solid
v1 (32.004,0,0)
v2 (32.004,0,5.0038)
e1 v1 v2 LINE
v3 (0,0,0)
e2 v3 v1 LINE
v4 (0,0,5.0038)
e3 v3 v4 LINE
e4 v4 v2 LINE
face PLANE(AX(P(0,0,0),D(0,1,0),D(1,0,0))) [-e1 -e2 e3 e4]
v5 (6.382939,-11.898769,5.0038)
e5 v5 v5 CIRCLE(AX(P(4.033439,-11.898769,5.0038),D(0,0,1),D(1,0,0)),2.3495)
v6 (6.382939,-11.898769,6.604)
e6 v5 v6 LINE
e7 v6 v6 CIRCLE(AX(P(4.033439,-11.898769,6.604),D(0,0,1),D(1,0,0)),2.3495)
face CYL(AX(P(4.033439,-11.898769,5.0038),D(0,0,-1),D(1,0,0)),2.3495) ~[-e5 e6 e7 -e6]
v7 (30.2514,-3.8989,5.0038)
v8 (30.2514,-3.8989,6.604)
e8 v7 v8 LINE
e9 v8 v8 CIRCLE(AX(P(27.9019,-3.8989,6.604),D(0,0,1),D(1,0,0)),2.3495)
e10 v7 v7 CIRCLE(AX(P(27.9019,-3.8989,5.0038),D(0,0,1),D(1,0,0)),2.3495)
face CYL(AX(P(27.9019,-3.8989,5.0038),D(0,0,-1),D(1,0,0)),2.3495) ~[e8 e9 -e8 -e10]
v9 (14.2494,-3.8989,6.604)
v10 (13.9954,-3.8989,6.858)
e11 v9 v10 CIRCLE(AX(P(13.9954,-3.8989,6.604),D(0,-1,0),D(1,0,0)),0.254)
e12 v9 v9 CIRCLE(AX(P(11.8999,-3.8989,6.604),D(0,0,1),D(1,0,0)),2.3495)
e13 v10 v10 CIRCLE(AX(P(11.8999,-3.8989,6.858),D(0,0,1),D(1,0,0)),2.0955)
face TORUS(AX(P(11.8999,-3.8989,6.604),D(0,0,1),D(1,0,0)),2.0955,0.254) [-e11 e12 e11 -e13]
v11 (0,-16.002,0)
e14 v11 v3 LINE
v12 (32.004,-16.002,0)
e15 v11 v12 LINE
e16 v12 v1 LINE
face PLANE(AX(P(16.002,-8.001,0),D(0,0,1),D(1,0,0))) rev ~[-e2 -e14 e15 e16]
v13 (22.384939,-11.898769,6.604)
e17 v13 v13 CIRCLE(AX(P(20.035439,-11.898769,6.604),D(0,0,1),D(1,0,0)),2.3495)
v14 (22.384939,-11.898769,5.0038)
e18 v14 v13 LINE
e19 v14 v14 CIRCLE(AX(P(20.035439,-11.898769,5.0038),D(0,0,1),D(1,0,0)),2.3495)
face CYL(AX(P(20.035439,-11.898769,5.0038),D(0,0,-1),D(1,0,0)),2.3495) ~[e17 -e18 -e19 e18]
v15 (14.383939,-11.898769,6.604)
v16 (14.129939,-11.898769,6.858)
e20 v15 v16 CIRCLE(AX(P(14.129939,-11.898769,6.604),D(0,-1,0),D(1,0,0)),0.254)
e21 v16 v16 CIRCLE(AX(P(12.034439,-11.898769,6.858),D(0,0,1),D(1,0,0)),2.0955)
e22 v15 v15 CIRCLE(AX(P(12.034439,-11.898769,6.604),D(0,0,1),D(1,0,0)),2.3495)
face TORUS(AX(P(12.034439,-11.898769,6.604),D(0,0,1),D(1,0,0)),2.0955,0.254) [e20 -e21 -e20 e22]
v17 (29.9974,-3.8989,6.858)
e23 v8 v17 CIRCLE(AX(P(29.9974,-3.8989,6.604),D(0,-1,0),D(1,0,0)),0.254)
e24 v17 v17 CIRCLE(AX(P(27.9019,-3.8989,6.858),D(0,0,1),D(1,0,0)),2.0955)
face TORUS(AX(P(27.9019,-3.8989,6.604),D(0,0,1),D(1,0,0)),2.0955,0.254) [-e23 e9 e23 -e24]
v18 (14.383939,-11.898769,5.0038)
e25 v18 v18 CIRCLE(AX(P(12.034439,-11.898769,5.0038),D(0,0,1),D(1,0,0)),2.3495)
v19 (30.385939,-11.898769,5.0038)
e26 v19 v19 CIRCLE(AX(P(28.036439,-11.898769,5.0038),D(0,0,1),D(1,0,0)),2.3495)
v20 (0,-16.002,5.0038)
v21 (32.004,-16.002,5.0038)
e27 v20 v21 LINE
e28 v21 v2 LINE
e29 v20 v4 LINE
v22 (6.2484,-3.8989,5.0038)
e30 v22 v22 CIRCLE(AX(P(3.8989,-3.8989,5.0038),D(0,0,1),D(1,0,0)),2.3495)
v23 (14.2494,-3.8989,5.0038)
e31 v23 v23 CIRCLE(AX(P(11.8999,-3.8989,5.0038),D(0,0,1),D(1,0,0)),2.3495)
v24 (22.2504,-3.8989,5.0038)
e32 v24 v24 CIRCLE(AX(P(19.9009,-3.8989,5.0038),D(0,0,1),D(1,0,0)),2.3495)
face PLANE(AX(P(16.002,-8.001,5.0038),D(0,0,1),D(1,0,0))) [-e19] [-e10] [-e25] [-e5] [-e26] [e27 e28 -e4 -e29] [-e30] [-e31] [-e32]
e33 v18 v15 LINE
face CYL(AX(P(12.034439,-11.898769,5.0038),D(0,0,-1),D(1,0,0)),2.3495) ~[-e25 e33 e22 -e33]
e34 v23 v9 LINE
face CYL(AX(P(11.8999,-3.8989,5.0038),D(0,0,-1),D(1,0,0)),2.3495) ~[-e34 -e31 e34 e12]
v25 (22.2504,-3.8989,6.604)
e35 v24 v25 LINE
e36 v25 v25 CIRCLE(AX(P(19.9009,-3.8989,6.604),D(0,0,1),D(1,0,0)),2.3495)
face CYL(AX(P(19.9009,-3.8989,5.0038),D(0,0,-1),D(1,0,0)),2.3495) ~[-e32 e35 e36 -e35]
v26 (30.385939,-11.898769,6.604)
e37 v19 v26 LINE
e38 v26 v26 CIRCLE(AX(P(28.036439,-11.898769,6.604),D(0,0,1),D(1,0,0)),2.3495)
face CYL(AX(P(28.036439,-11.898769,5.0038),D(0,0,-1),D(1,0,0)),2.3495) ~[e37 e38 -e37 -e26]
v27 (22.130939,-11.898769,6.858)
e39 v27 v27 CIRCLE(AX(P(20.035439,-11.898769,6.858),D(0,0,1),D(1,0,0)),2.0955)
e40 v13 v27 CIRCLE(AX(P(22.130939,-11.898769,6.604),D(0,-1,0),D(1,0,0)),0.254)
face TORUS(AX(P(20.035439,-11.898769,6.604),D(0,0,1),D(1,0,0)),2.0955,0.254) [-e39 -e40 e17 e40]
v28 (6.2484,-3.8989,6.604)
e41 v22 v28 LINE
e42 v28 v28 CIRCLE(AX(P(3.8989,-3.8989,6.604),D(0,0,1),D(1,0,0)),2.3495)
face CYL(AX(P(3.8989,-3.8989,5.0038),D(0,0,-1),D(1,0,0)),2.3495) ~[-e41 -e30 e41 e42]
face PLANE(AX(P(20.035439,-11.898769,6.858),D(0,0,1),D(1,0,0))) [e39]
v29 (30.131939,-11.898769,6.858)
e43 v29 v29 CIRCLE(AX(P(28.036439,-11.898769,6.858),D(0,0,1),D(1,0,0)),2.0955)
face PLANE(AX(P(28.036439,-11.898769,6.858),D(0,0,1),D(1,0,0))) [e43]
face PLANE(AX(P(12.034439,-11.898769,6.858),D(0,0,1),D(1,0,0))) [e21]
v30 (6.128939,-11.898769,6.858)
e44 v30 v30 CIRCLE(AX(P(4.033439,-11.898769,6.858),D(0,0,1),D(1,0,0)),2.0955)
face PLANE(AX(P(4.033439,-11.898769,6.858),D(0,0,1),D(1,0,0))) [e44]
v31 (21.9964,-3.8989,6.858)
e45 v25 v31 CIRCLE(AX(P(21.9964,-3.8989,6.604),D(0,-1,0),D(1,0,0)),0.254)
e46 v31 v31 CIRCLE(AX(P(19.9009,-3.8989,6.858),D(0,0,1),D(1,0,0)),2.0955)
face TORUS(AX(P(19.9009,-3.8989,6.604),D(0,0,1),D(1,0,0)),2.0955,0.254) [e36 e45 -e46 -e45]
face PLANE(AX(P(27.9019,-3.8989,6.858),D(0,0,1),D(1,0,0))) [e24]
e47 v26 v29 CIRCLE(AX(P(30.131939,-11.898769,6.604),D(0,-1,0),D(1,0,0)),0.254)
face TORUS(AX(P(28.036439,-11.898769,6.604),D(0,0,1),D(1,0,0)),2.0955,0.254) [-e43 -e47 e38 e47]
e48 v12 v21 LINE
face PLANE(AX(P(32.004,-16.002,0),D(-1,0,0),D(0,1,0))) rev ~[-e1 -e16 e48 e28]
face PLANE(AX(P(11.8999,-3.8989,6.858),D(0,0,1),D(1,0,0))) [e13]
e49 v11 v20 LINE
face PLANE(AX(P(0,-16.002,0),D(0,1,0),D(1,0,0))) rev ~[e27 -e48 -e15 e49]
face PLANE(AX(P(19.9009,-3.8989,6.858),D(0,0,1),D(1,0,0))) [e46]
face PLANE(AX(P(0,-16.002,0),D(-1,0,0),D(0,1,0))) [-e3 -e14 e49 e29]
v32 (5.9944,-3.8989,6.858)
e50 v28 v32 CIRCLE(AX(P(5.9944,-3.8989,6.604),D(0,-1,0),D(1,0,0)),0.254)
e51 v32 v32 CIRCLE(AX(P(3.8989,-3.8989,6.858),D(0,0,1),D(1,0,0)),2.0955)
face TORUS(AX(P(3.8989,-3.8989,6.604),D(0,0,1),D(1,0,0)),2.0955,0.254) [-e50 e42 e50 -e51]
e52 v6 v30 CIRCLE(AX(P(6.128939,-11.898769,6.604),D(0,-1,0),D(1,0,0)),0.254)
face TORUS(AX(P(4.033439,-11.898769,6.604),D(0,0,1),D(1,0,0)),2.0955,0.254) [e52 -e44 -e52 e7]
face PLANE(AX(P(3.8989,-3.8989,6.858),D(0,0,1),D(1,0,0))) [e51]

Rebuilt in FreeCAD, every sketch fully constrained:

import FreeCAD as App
import Part
import Sketcher
from FreeCAD import Vector
Q = App.Units.Quantity


def edges_at(feature, points):
    """Names of the edges that pass closest to the given points."""
    edges = feature.Shape.Edges
    near = lambda p: min(range(len(edges)), key=lambda i: edges[i].distToShape(Part.Vertex(*p))[0])
    return sorted({f"Edge{near(p) + 1}" for p in points})

doc = App.newDocument("Part")
body = doc.addObject("PartDesign::Body", "Body")

sketch1 = doc.addObject("Sketcher::SketchObject", "Sketch")
body.addObject(sketch1)
sketch1.AttachmentSupport = (doc.XY_Plane, [""])
sketch1.MapMode = "FlatFace"
sketch1.addGeometry(Part.LineSegment(Vector(0, 0, 0), Vector(0, -16.002, 0)), False)
sketch1.addGeometry(Part.LineSegment(Vector(0, -16.002, 0), Vector(32.004, -16.002, 0)), False)
sketch1.addGeometry(Part.LineSegment(Vector(32.004, -16.002, 0), Vector(32.004, 0, 0)), False)
sketch1.addGeometry(Part.LineSegment(Vector(32.004, 0, 0), Vector(0, 0, 0)), False)
sketch1.addConstraint(Sketcher.Constraint("Coincident", 0, 2, 1, 1))
sketch1.addConstraint(Sketcher.Constraint("Coincident", 1, 2, 2, 1))
sketch1.addConstraint(Sketcher.Constraint("Coincident", 2, 2, 3, 1))
sketch1.addConstraint(Sketcher.Constraint("Coincident", 3, 2, 0, 1))
sketch1.addConstraint(Sketcher.Constraint("Vertical", 0))
sketch1.addConstraint(Sketcher.Constraint("Horizontal", 1))
sketch1.addConstraint(Sketcher.Constraint("Vertical", 2))
sketch1.addConstraint(Sketcher.Constraint("Horizontal", 3))
sketch1.addConstraint(Sketcher.Constraint("Coincident", 3, 2, -1, 1))
sketch1.addConstraint(Sketcher.Constraint("DistanceX", 1, 1, 1, 2, Q("1.26 in")))
sketch1.addConstraint(Sketcher.Constraint("DistanceY", 0, 2, 0, 1, Q("0.63 in")))
pad1 = doc.addObject("PartDesign::Pad", "Pad")
body.addObject(pad1)
pad1.Profile = sketch1
pad1.Length = Q("0.197 in")

sketch2 = doc.addObject("Sketcher::SketchObject", "Sketch001")
body.addObject(sketch2)
sketch2.AttachmentSupport = (doc.XY_Plane, [""])
sketch2.MapMode = "FlatFace"
sketch2.AttachmentOffset = App.Placement(Vector(0, 0, 0.197 * 25.4), App.Rotation())
sketch2.addGeometry(Part.Circle(Vector(3.8989, -3.8989, 0), Vector(0, 0, 1), 2.3495), False)
sketch2.addGeometry(Part.Circle(Vector(11.8999, -3.8989, 0), Vector(0, 0, 1), 2.3495), False)
sketch2.addGeometry(Part.Circle(Vector(19.9009, -3.8989, 0), Vector(0, 0, 1), 2.3495), False)
sketch2.addGeometry(Part.Circle(Vector(27.9019, -3.8989, 0), Vector(0, 0, 1), 2.3495), False)
sketch2.addGeometry(Part.Circle(Vector(4.033439, -11.898769, 0), Vector(0, 0, 1), 2.3495), False)
sketch2.addGeometry(Part.Circle(Vector(12.034439, -11.898769, 0), Vector(0, 0, 1), 2.3495), False)
sketch2.addGeometry(Part.Circle(Vector(20.035439, -11.898769, 0), Vector(0, 0, 1), 2.3495), False)
sketch2.addGeometry(Part.Circle(Vector(28.036439, -11.898769, 0), Vector(0, 0, 1), 2.3495), False)
sketch2.addConstraint(Sketcher.Constraint("Equal", 0, 1))
sketch2.addConstraint(Sketcher.Constraint("Equal", 1, 2))
sketch2.addConstraint(Sketcher.Constraint("Equal", 2, 3))
sketch2.addConstraint(Sketcher.Constraint("Equal", 3, 4))
sketch2.addConstraint(Sketcher.Constraint("Equal", 4, 5))
sketch2.addConstraint(Sketcher.Constraint("Equal", 5, 6))
sketch2.addConstraint(Sketcher.Constraint("Equal", 6, 7))
sketch2.addConstraint(Sketcher.Constraint("Horizontal", 0, 3, 1, 3))
sketch2.addConstraint(Sketcher.Constraint("Horizontal", 1, 3, 2, 3))
sketch2.addConstraint(Sketcher.Constraint("Horizontal", 2, 3, 3, 3))
sketch2.addConstraint(Sketcher.Constraint("Horizontal", 4, 3, 5, 3))
sketch2.addConstraint(Sketcher.Constraint("Horizontal", 5, 3, 6, 3))
sketch2.addConstraint(Sketcher.Constraint("Horizontal", 6, 3, 7, 3))
sketch2.addConstraint(Sketcher.Constraint("Diameter", 0, Q("0.185 in")))
sketch2.addConstraint(Sketcher.Constraint("DistanceX", 0, 3, 2, 3, Q("0.63 in")))
sketch2.addConstraint(Sketcher.Constraint("DistanceX", 1, 3, 3, 3, Q("0.63 in")))
sketch2.addConstraint(Sketcher.Constraint("DistanceX", 4, 3, 6, 3, Q("0.63 in")))
sketch2.addConstraint(Sketcher.Constraint("DistanceX", 5, 3, 7, 3, Q("0.63 in")))
sketch2.addConstraint(Sketcher.Constraint("DistanceX", 0, 3, 1, 3, Q("0.315 in")))
sketch2.addConstraint(Sketcher.Constraint("DistanceX", 4, 3, 5, 3, Q("0.315 in")))
sketch2.addConstraint(Sketcher.Constraint("DistanceX", -1, 1, 0, 3, Q("0.1535 in")))
sketch2.addConstraint(Sketcher.Constraint("DistanceY", 0, 3, -1, 1, Q("0.1535 in")))
sketch2.addConstraint(Sketcher.Constraint("DistanceX", -1, 1, 4, 3, Q("4.033439 mm")))
sketch2.addConstraint(Sketcher.Constraint("DistanceY", 4, 3, -1, 1, Q("11.898769 mm")))
pad2 = doc.addObject("PartDesign::Pad", "Pad001")
body.addObject(pad2)
pad2.Profile = sketch2
pad2.Length = Q("0.073 in")
doc.recompute()

fillet = doc.addObject("PartDesign::Fillet", "Fillet")
body.addObject(fillet)
fillet.Base = (pad2, edges_at(pad2, [
    (1.549, -3.899, 6.858),
    (9.55, -3.899, 6.858),
    (17.551, -3.899, 6.858),
    (25.552, -3.899, 6.858),
    (25.687, -11.899, 6.858),
    (17.686, -11.899, 6.858),
    (9.685, -11.899, 6.858),
    (1.684, -11.899, 6.858),
]))
fillet.Radius = Q("0.01 in")

doc.recompute()
